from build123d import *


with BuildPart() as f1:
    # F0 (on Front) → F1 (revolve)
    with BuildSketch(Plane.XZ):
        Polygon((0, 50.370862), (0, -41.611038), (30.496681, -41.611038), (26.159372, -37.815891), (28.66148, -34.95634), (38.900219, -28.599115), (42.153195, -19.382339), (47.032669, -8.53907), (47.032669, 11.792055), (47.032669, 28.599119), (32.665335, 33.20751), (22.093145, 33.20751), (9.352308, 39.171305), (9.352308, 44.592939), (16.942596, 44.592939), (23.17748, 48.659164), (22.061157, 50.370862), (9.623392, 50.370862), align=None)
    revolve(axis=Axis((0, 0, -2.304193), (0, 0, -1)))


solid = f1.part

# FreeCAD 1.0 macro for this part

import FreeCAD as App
import Part
import Sketcher
Q = App.Units.Quantity

doc = App.newDocument("Part")
body = doc.addObject("PartDesign::Body", "Body")

sketch1 = body.newObject("Sketcher::SketchObject", "Sketch")
sketch1.AttachmentSupport = (doc.getObject("XZ_Plane"), [""])
sketch1.MapMode = "FlatFace"
sketch1.addGeometry([
    Part.LineSegment(App.Vector(0, 50.370862, 0), App.Vector(0, -41.611038, 0)),
    Part.LineSegment(App.Vector(0, -41.611038, 0), App.Vector(30.496681, -41.611038, 0)),
    Part.LineSegment(App.Vector(30.496681, -41.611038, 0), App.Vector(26.159372, -37.815891, 0)),
    Part.LineSegment(App.Vector(26.159372, -37.815891, 0), App.Vector(28.66148, -34.95634, 0)),
    Part.LineSegment(App.Vector(28.66148, -34.95634, 0), App.Vector(38.900219, -28.599115, 0)),
    Part.LineSegment(App.Vector(38.900219, -28.599115, 0), App.Vector(42.153195, -19.382339, 0)),
    Part.LineSegment(App.Vector(42.153195, -19.382339, 0), App.Vector(47.032669, -8.53907, 0)),
    Part.LineSegment(App.Vector(47.032669, -8.53907, 0), App.Vector(47.032669, 28.599119, 0)),
    Part.LineSegment(App.Vector(47.032669, 28.599119, 0), App.Vector(32.665335, 33.20751, 0)),
    Part.LineSegment(App.Vector(32.665335, 33.20751, 0), App.Vector(22.093145, 33.20751, 0)),
    Part.LineSegment(App.Vector(22.093145, 33.20751, 0), App.Vector(9.352308, 39.171305, 0)),
    Part.LineSegment(App.Vector(9.352308, 39.171305, 0), App.Vector(9.352308, 44.592939, 0)),
    Part.LineSegment(App.Vector(9.352308, 44.592939, 0), App.Vector(16.942596, 44.592939, 0)),
    Part.LineSegment(App.Vector(16.942596, 44.592939, 0), App.Vector(23.17748, 48.659164, 0)),
    Part.LineSegment(App.Vector(23.17748, 48.659164, 0), App.Vector(22.061157, 50.370862, 0)),
    Part.LineSegment(App.Vector(22.061157, 50.370862, 0), App.Vector(0, 50.370862, 0)),
], False)
sketch1.addConstraint([
    Sketcher.Constraint("Coincident", 0, 2, 1, 1),
    Sketcher.Constraint("Coincident", 1, 2, 2, 1),
    Sketcher.Constraint("Coincident", 2, 2, 3, 1),
    Sketcher.Constraint("Coincident", 3, 2, 4, 1),
    Sketcher.Constraint("Coincident", 4, 2, 5, 1),
    Sketcher.Constraint("Coincident", 5, 2, 6, 1),
    Sketcher.Constraint("Coincident", 6, 2, 7, 1),
    Sketcher.Constraint("Coincident", 7, 2, 8, 1),
    Sketcher.Constraint("Coincident", 8, 2, 9, 1),
    Sketcher.Constraint("Coincident", 9, 2, 10, 1),
    Sketcher.Constraint("Coincident", 10, 2, 11, 1),
    Sketcher.Constraint("Coincident", 11, 2, 12, 1),
    Sketcher.Constraint("Coincident", 12, 2, 13, 1),
    Sketcher.Constraint("Coincident", 13, 2, 14, 1),
    Sketcher.Constraint("Coincident", 14, 2, 15, 1),
    Sketcher.Constraint("Coincident", 15, 2, 0, 1),
    Sketcher.Constraint("Vertical", 0),
    Sketcher.Constraint("Horizontal", 1),
    Sketcher.Constraint("Vertical", 7),
    Sketcher.Constraint("Horizontal", 9),
    Sketcher.Constraint("Vertical", 11),
    Sketcher.Constraint("Horizontal", 12),
    Sketcher.Constraint("Horizontal", 15),
    Sketcher.Constraint("PointOnObject", 0, 2, -2),
    Sketcher.Constraint("Perpendicular", 2, 3),
    Sketcher.Constraint("Perpendicular", 13, 14),
    Sketcher.Constraint("Angle", 5, Q("70.559986 deg")),
    Sketcher.Constraint("DistanceY", 0, 2, 0, 1, Q("91.9819 mm")),
    Sketcher.Constraint("DistanceY", 3, 2, 5, 2, Q("15.574001 mm")),
    Sketcher.Constraint("DistanceX", 1, 1, 1, 2, Q("30.496681 mm")),
    Sketcher.Constraint("DistanceX", 9, 2, 9, 1, Q("10.57219 mm")),
    Sketcher.Constraint("DistanceX", 12, 1, 12, 2, Q("7.590288 mm")),
    Sketcher.Constraint("DistanceY", 7, 1, 7, 2, Q("37.138189 mm")),
    Sketcher.Constraint("DistanceX", 3, 2, 1, 2, Q("1.835201 mm")),
    Sketcher.Constraint("DistanceY", 1, 2, 3, 2, Q("6.654698 mm")),
    Sketcher.Constraint("DistanceY", 13, 2, 14, 2, Q("1.711698 mm")),
    Sketcher.Constraint("Distance", 2, Q("5.763279 mm")),
    Sketcher.Constraint("Distance", 4, Q("12.051808 mm")),
    Sketcher.Constraint("DistanceX", 15, 2, 15, 1, Q("22.061157 mm")),
    Sketcher.Constraint("DistanceY", 11, 1, 11, 2, Q("5.421634 mm")),
    Sketcher.Constraint("DistanceY", 2, 2, -1, 1, Q("37.815891 mm")),
    Sketcher.Constraint("DistanceX", -1, 1, 4, 2, Q("38.900219 mm")),
    Sketcher.Constraint("DistanceX", -1, 1, 6, 2, Q("47.032669 mm")),
    Sketcher.Constraint("DistanceY", 6, 2, -1, 1, Q("8.53907 mm")),
    Sketcher.Constraint("DistanceY", -1, 1, 8, 2, Q("33.20751 mm")),
    Sketcher.Constraint("DistanceX", -1, 1, 10, 2, Q("9.352308 mm")),
    Sketcher.Constraint("DistanceY", -1, 1, 11, 2, Q("44.592939 mm")),
    Sketcher.Constraint("DistanceX", 8, 2, 5, 2, Q("9.48786 mm")),
])
revolution = body.newObject("PartDesign::Revolution", "Revolution")
revolution.Profile = sketch1
revolution.ReferenceAxis = (sketch1, ["V_Axis"])
revolution.Angle = 360

doc.recompute()
